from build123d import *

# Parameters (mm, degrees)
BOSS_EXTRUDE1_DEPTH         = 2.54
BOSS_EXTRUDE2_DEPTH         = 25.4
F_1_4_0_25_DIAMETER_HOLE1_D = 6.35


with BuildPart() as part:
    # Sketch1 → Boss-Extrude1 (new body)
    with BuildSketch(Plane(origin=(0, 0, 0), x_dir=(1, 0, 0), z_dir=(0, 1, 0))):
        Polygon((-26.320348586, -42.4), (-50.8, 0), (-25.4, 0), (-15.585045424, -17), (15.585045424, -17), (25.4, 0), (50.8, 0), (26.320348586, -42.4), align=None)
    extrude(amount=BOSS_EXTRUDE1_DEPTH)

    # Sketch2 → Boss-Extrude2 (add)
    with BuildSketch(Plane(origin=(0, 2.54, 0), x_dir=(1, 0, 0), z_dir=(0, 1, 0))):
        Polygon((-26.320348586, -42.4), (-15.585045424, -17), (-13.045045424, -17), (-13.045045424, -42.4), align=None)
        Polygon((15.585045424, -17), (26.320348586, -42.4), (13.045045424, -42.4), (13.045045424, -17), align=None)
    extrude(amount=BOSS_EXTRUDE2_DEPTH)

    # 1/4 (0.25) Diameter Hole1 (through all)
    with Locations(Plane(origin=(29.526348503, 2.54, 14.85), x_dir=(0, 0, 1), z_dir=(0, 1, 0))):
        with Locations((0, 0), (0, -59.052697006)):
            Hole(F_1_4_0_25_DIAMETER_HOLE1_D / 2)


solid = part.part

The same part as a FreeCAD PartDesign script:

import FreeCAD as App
import Part
import Sketcher
Q = App.Units.Quantity


def add_polygon(sketch, points):
    """Adds a closed chain of lines whose ends are joined by coincident constraints."""
    first, n = sketch.GeometryCount, len(points)
    for a, b in zip(points, points[1:] + points[:1]):
        sketch.addGeometry(Part.LineSegment(App.Vector(*a, 0), App.Vector(*b, 0)), False)
    for i in range(n):
        sketch.addConstraint(Sketcher.Constraint("Coincident", first + i, 2, first + (i + 1) % n, 1))

doc = App.newDocument("Part")
body = doc.addObject("PartDesign::Body", "Body")

# Sketch on XZ plane
sketch1 = body.newObject("Sketcher::SketchObject", "Sketch")
sketch1.AttachmentSupport = (doc.getObject("XZ_Plane"), [""])
sketch1.MapMode = "FlatFace"
add_polygon(sketch1, [(-51, 0), (-26, 42), (26, 42), (51, 0), (25, 0), (16, 17), (-16, 17), (-25, 0)])  # lines 0-7
sketch1.addConstraint([
    Sketcher.Constraint("Horizontal", 1),
    Sketcher.Constraint("Horizontal", 3),
    Sketcher.Constraint("Horizontal", 5),
    Sketcher.Constraint("Horizontal", 7),
    Sketcher.Constraint("Symmetric", 3, 2, 6, 2, -1, 1),
    Sketcher.Constraint("Symmetric", 2, 2, 7, 2, -2),
    Sketcher.Constraint("Parallel", 2, 4),
    Sketcher.Constraint("Parallel", 0, 6),
    Sketcher.Constraint("Equal", 0, 2),
    Sketcher.Constraint("DistanceX", 3, 2, 3, 1, Q("1 in")),
    Sketcher.Constraint("DistanceX", -1, 1, 2, 2, Q("2 in")),
    Sketcher.Constraint("Angle", 0, Q("60 deg")),
    Sketcher.Constraint("DistanceY", 4, 2, 1, 2, Q("1 in")),
    Sketcher.Constraint("DistanceX", 5, 2, 5, 1, 31.170091),
])
pad1 = body.newObject("PartDesign::Pad", "Pad")
pad1.Profile = sketch1
pad1.Length = Q("0.1 in")
pad1.Reversed = True

# Sketch on XZ plane
sketch2 = body.newObject("Sketcher::SketchObject", "Sketch001")
sketch2.AttachmentSupport = (doc.getObject("XZ_Plane"), [""])
sketch2.MapMode = "FlatFace"
sketch2.AttachmentOffset = App.Placement(App.Vector(0, 0, -0.1 * 25.4), App.Rotation())
add_polygon(sketch2, [(-15.6, 17), (-26.3, 42.4), (-13, 42.4), (-13, 17)])  # lines 0-3
add_polygon(sketch2, [(26.3, 42.4), (15.6, 17), (13, 17), (13, 42.4)])  # lines 4-7
sketch2.addConstraint([
    Sketcher.Constraint("Horizontal", 1),
    Sketcher.Constraint("Vertical", 2),
    Sketcher.Constraint("Horizontal", 3),
    Sketcher.Constraint("Horizontal", 5),
    Sketcher.Constraint("Vertical", 6),
    Sketcher.Constraint("Horizontal", 7),
    Sketcher.Constraint("Symmetric", 3, 2, 4, 2, -2),
    Sketcher.Constraint("Symmetric", 1, 2, 6, 2, -2),
    Sketcher.Constraint("Equal", 1, 7),
    Sketcher.Constraint("DistanceY", 2, 2, 2, 1, Q("1 in")),
    Sketcher.Constraint("DistanceX", 3, 2, 3, 1, Q("0.1 in")),
    Sketcher.Constraint("DistanceY", -1, 1, 0, 2, 42.4),
    Sketcher.Constraint("DistanceX", 1, 1, 1, 2, 13.275303),
    Sketcher.Constraint("DistanceX", 0, 2, -1, 1, 26.320349),
])
pad2 = body.newObject("PartDesign::Pad", "Pad001")
pad2.Profile = sketch2
pad2.Length = Q("1 in")
pad2.Reversed = True

# Sketch on XZ plane
sketch3 = body.newObject("Sketcher::SketchObject", "Sketch002")
sketch3.AttachmentSupport = (doc.getObject("XZ_Plane"), [""])
sketch3.MapMode = "FlatFace"
sketch3.AttachmentOffset = App.Placement(App.Vector(0, 0, -0.1 * 25.4), App.Rotation())
sketch3.addGeometry([
    Part.Circle(App.Vector(29.5, 14.8, 0), App.Vector(0, 0, 1), 3.2),
    Part.Circle(App.Vector(-29.5, 14.8, 0), App.Vector(0, 0, 1), 3.2),
], False)
sketch3.addConstraint([
    Sketcher.Constraint("Equal", 0, 1),
    Sketcher.Constraint("Symmetric", 0, 3, 1, 3, -2),
    Sketcher.Constraint("Diameter", 0, Q("0.25 in")),
    Sketcher.Constraint("DistanceY", -1, 1, 0, 3, 14.85),
    Sketcher.Constraint("DistanceX", -1, 1, 0, 3, 29.526349),
])
doc.recompute()
hole = body.newObject("PartDesign::Hole", "Hole")
hole.Profile = sketch3
hole.ThreadType = "None"
hole.Diameter = Q("0.25 in")
hole.DepthType = "ThroughAll"
hole.Reversed = True

doc.recompute()
